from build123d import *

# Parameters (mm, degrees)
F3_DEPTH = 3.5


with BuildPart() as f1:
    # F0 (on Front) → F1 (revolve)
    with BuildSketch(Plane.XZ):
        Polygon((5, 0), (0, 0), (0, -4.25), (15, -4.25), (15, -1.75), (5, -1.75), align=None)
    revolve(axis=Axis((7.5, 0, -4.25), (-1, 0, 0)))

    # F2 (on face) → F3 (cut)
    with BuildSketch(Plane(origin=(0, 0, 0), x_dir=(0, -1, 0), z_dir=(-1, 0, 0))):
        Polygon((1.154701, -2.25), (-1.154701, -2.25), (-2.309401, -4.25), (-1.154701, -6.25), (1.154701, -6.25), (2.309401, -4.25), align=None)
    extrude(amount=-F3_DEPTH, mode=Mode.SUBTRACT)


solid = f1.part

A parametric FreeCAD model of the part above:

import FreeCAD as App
import Part
import Sketcher
Q = App.Units.Quantity


def add_polygon(sketch, points):
    """Adds a closed chain of lines whose ends are joined by coincident constraints."""
    first, n = sketch.GeometryCount, len(points)
    for a, b in zip(points, points[1:] + points[:1]):
        sketch.addGeometry(Part.LineSegment(App.Vector(*a, 0), App.Vector(*b, 0)), False)
    for i in range(n):
        sketch.addConstraint(Sketcher.Constraint("Coincident", first + i, 2, first + (i + 1) % n, 1))

doc = App.newDocument("Part")
params = doc.addObject("Spreadsheet::Sheet", "Params")
for row, (alias, value) in enumerate([
    ("sketch1_width", "5 mm"),
    ("sketch1_width2", "15 mm"),
    ("sketch1_height", "2.5 mm"),
    ("sketch1_height2", "4.25 mm"),
    ("revolution_angle", "360 deg"),
    ("pocket1_length", "3.5 mm"),
], start=1):
    params.set(f"A{row}", alias)
    params.set(f"B{row}", "=" + value)
    params.setAlias(f"B{row}", alias)

body = doc.addObject("PartDesign::Body", "Body")

# Sketch on XZ plane
sketch1 = doc.addObject("Sketcher::SketchObject", "Sketch")
body.addObject(sketch1)
sketch1.AttachmentSupport = (doc.XZ_Plane, [""])
sketch1.MapMode = "FlatFace"
add_polygon(sketch1, [(5, 0), (0, 0), (0, -4.25), (15, -4.25), (15, -1.75), (5, -1.75)])  # lines 0-5
sketch1.addGeometry(Part.LineSegment(App.Vector(15, -4.25, 0), App.Vector(0, -4.25, 0)), True)  # axis
sketch1.addConstraint([
    Sketcher.Constraint("Horizontal", 0),
    Sketcher.Constraint("Vertical", 1),
    Sketcher.Constraint("Horizontal", 2),
    Sketcher.Constraint("Vertical", 3),
    Sketcher.Constraint("Horizontal", 4),
    Sketcher.Constraint("Vertical", 5),
    Sketcher.Constraint("Horizontal", 6),
    Sketcher.Constraint("Coincident", 0, 2, -1, 1),
    Sketcher.Constraint("Coincident", 6, 1, 2, 2),
    Sketcher.Constraint("PointOnObject", 6, 2, -2),
    Sketcher.Constraint("DistanceX", 0, 2, 0, 1, 5.0),
    Sketcher.Constraint("DistanceX", 2, 1, 2, 2, 15.0),
    Sketcher.Constraint("DistanceY", 3, 1, 3, 2, 2.5),
    Sketcher.Constraint("DistanceY", 1, 2, 1, 1, 4.25),
])
sketch1.setExpression("Constraints[16]", "Params.sketch1_width")
sketch1.setExpression("Constraints[17]", "Params.sketch1_width2")
sketch1.setExpression("Constraints[18]", "Params.sketch1_height")
sketch1.setExpression("Constraints[19]", "Params.sketch1_height2")
revolution = doc.addObject("PartDesign::Revolution", "Revolution")
body.addObject(revolution)
revolution.Profile = sketch1
revolution.ReferenceAxis = (sketch1, ["Axis0"])
revolution.setExpression("Angle", "Params.revolution_angle")

# Sketch on YZ plane
sketch2 = doc.addObject("Sketcher::SketchObject", "Sketch001")
body.addObject(sketch2)
sketch2.AttachmentSupport = (doc.YZ_Plane, [""])
sketch2.MapMode = "FlatFace"
add_polygon(sketch2, [(-1.154701, -2.25), (1.154701, -2.25), (2.309401, -4.25), (1.154701, -6.25), (-1.154701, -6.25), (-2.309401, -4.25)])  # lines 0-5
sketch2.addConstraint([
    Sketcher.Constraint("Horizontal", 0),
    Sketcher.Constraint("Horizontal", 3),
    Sketcher.Constraint("Symmetric", 1, 2, 4, 2, -2),
    Sketcher.Constraint("Parallel", 1, 4),
    Sketcher.Constraint("Parallel", 2, 5),
    Sketcher.Constraint("Vertical", 0, 2, 2, 2),
    Sketcher.Constraint("Vertical", 3, 2, 5, 2),
    Sketcher.Constraint("Angle", 1, Q("-60.000012 deg")),
    Sketcher.Constraint("DistanceY", 1, 2, 0, 2, 2.0),
    Sketcher.Constraint("DistanceY", 0, 2, -1, 1, 2.25),
    Sketcher.Constraint("DistanceX", 0, 1, 0, 2, 2.309402),
])
pocket1 = doc.addObject("PartDesign::Pocket", "Pocket")
body.addObject(pocket1)
pocket1.Profile = sketch2
pocket1.setExpression("Length", "Params.pocket1_length")
pocket1.Reversed = True

doc.recompute()
